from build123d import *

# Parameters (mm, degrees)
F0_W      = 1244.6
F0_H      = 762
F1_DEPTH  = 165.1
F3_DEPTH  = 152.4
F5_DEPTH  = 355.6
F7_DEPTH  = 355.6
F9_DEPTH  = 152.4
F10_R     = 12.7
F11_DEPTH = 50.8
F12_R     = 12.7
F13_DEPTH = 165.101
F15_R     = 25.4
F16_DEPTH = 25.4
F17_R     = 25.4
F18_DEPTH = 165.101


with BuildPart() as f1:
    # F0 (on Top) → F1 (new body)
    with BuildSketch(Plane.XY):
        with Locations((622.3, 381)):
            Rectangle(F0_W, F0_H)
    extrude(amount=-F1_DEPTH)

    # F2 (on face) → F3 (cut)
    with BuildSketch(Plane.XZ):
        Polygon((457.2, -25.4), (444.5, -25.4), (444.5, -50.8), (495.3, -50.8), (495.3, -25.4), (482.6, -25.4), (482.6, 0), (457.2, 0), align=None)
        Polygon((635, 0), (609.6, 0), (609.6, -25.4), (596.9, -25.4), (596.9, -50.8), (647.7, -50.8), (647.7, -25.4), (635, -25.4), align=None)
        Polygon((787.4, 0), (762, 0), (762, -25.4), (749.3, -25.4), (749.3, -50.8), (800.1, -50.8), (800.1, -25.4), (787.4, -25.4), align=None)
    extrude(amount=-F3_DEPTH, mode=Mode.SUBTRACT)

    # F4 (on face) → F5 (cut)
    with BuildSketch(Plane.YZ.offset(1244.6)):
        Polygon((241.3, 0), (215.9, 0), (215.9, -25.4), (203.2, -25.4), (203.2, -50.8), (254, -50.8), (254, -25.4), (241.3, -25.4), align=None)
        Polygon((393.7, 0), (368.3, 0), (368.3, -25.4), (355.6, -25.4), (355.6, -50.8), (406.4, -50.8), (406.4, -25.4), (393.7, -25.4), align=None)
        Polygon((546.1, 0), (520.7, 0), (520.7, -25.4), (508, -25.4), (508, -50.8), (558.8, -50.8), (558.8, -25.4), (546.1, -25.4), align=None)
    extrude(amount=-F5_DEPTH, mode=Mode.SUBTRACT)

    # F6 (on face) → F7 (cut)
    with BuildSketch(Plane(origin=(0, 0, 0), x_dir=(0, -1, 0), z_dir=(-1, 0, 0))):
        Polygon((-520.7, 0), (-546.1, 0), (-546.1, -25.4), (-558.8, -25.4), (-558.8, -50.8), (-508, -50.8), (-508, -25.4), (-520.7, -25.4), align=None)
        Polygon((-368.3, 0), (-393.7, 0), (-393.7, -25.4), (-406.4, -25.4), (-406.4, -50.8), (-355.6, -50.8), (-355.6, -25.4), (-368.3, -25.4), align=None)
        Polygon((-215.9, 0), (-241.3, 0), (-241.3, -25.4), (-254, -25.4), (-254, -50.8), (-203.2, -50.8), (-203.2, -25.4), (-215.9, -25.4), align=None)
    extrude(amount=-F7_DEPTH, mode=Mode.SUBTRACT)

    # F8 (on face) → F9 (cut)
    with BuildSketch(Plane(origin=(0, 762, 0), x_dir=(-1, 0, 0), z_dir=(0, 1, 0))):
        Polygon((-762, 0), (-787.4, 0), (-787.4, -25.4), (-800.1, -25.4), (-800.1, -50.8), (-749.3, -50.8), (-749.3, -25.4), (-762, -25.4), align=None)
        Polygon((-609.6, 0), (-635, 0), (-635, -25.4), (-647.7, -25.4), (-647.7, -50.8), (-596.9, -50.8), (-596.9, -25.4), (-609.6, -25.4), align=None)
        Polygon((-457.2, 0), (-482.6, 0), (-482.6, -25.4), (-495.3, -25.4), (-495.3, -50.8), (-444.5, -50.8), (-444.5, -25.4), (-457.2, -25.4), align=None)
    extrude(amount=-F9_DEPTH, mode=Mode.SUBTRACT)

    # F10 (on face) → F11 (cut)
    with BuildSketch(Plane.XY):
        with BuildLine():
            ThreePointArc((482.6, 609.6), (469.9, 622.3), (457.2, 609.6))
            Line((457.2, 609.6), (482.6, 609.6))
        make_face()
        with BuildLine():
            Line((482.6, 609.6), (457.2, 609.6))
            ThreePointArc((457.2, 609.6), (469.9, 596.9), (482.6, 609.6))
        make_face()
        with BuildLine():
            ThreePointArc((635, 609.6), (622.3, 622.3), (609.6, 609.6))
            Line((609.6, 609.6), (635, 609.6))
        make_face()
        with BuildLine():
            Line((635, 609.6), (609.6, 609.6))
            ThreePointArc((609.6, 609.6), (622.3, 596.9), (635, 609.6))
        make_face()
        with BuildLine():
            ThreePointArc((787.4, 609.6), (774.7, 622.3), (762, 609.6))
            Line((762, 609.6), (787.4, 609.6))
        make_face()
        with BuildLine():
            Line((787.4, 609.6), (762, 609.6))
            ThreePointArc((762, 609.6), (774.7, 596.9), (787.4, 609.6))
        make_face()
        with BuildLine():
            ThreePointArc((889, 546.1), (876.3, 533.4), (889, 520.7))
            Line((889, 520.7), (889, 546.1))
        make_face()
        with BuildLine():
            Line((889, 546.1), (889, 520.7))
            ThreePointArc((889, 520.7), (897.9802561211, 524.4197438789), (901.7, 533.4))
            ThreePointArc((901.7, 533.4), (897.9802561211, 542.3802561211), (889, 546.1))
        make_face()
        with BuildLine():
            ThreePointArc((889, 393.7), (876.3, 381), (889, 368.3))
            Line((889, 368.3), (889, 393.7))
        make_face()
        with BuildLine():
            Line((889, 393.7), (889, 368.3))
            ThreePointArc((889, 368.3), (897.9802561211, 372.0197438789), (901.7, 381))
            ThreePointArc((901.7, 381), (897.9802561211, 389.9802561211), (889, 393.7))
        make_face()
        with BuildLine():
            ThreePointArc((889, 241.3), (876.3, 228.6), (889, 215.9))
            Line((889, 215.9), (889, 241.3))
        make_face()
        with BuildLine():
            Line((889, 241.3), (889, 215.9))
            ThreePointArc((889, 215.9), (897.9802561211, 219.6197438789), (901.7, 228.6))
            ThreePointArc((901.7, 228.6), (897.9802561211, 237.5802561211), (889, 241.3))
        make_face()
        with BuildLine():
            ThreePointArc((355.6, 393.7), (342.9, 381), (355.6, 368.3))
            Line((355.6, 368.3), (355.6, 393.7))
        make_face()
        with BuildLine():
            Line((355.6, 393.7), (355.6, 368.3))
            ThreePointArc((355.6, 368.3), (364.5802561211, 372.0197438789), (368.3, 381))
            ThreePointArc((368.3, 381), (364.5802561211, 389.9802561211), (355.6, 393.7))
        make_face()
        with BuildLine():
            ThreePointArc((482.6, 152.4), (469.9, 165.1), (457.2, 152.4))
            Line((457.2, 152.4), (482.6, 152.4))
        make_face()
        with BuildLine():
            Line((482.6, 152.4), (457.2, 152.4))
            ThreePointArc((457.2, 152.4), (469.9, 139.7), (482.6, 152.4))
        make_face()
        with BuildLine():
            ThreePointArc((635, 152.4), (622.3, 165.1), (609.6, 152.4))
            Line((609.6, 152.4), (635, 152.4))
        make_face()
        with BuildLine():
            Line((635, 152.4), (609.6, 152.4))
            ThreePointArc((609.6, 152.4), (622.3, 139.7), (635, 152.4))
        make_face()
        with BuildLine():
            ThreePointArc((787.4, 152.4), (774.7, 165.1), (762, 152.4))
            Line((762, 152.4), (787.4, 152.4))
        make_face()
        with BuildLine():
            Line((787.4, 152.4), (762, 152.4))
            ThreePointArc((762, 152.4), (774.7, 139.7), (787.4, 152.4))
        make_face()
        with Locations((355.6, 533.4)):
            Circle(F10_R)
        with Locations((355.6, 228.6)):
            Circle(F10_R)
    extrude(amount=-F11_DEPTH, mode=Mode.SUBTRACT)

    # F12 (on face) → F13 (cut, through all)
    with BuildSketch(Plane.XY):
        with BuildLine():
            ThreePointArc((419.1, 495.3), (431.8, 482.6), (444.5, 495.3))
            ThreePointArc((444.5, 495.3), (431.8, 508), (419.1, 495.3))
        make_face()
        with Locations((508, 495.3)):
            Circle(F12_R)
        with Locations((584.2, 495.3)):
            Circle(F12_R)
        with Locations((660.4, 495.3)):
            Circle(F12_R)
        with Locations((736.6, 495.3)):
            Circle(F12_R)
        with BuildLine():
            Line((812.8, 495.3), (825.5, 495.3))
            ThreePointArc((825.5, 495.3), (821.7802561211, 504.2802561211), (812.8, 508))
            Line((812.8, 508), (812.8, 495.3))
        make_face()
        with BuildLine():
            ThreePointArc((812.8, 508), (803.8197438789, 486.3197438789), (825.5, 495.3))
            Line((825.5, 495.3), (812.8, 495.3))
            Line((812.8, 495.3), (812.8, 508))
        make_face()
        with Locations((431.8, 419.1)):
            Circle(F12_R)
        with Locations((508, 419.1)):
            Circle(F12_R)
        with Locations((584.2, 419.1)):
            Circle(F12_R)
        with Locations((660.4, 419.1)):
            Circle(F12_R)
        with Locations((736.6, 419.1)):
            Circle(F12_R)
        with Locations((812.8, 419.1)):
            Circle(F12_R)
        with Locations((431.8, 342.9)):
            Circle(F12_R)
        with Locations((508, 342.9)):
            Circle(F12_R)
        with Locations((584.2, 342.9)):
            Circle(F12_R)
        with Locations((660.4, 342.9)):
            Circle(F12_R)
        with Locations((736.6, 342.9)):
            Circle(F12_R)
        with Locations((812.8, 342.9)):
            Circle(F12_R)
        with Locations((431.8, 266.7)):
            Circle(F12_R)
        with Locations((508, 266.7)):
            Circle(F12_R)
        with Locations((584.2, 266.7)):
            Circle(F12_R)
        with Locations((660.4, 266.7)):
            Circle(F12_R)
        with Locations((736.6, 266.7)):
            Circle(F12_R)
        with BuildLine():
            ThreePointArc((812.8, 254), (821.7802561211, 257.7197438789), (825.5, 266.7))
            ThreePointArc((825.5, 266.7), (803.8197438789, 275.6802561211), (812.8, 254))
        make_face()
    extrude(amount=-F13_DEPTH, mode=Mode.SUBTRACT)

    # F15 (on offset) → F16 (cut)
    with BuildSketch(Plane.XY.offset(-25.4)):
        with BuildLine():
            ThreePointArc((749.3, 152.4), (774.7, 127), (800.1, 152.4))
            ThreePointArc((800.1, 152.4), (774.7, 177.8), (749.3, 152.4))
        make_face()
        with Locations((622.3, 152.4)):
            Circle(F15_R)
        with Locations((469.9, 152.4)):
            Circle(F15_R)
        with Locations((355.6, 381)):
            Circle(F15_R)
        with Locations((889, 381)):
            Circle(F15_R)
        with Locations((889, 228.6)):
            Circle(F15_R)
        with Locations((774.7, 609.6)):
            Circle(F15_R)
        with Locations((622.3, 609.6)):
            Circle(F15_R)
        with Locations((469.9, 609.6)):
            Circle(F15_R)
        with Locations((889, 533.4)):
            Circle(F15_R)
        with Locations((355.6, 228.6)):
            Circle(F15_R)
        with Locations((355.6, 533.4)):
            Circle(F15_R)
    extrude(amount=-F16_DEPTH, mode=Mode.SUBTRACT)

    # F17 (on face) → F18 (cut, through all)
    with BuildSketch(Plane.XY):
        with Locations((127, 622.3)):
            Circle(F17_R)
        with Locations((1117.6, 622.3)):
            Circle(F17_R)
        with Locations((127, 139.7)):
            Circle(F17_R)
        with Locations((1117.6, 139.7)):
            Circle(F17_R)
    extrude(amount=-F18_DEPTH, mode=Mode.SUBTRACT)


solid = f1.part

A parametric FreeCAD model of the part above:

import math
import FreeCAD as App
import Part
import Sketcher
Q = App.Units.Quantity


def add_polygon(sketch, points):
    """Adds a closed chain of lines whose ends are joined by coincident constraints."""
    first, n = sketch.GeometryCount, len(points)
    for a, b in zip(points, points[1:] + points[:1]):
        sketch.addGeometry(Part.LineSegment(App.Vector(*a, 0), App.Vector(*b, 0)), False)
    for i in range(n):
        sketch.addConstraint(Sketcher.Constraint("Coincident", first + i, 2, first + (i + 1) % n, 1))

doc = App.newDocument("Part")
body = doc.addObject("PartDesign::Body", "Body")

sketch1 = doc.addObject("Sketcher::SketchObject", "Sketch")
body.addObject(sketch1)
sketch1.AttachmentSupport = (doc.XY_Plane, [""])
sketch1.MapMode = "FlatFace"
add_polygon(sketch1, [(0, 762), (0, 0), (1245, 0), (1245, 762)])
sketch1.addConstraint(Sketcher.Constraint("Vertical", 0))
sketch1.addConstraint(Sketcher.Constraint("Horizontal", 1))
sketch1.addConstraint(Sketcher.Constraint("Vertical", 2))
sketch1.addConstraint(Sketcher.Constraint("Horizontal", 3))
sketch1.addConstraint(Sketcher.Constraint("Coincident", 0, 2, -1, 1))
sketch1.addConstraint(Sketcher.Constraint("DistanceX", 1, 1, 1, 2, Q("49 in")))
sketch1.addConstraint(Sketcher.Constraint("DistanceY", 0, 2, 0, 1, Q("30 in")))
pad1 = doc.addObject("PartDesign::Pad", "Pad")
body.addObject(pad1)
pad1.Profile = sketch1
pad1.Length = Q("6.5 in")
pad1.Reversed = True

sketch2 = doc.addObject("Sketcher::SketchObject", "Sketch001")
body.addObject(sketch2)
sketch2.AttachmentSupport = (doc.XZ_Plane, [""])
sketch2.MapMode = "FlatFace"
add_polygon(sketch2, [(457, -25), (444, -25), (444, -51), (495, -51), (495, -25), (483, -25), (483, 0), (457, 0)])
add_polygon(sketch2, [(635, 0), (610, 0), (610, -25), (597, -25), (597, -51), (648, -51), (648, -25), (635, -25)])
add_polygon(sketch2, [(787, 0), (762, 0), (762, -25), (749, -25), (749, -51), (800, -51), (800, -25), (787, -25)])
sketch2.addConstraint(Sketcher.Constraint("Horizontal", 0))
sketch2.addConstraint(Sketcher.Constraint("Vertical", 1))
sketch2.addConstraint(Sketcher.Constraint("Horizontal", 2))
sketch2.addConstraint(Sketcher.Constraint("Vertical", 3))
sketch2.addConstraint(Sketcher.Constraint("Horizontal", 4))
sketch2.addConstraint(Sketcher.Constraint("Vertical", 5))
sketch2.addConstraint(Sketcher.Constraint("Horizontal", 6))
sketch2.addConstraint(Sketcher.Constraint("Vertical", 7))
sketch2.addConstraint(Sketcher.Constraint("Horizontal", 8))
sketch2.addConstraint(Sketcher.Constraint("Vertical", 9))
sketch2.addConstraint(Sketcher.Constraint("Horizontal", 10))
sketch2.addConstraint(Sketcher.Constraint("Vertical", 11))
sketch2.addConstraint(Sketcher.Constraint("Horizontal", 12))
sketch2.addConstraint(Sketcher.Constraint("Vertical", 13))
sketch2.addConstraint(Sketcher.Constraint("Horizontal", 14))
sketch2.addConstraint(Sketcher.Constraint("Vertical", 15))
sketch2.addConstraint(Sketcher.Constraint("Horizontal", 16))
sketch2.addConstraint(Sketcher.Constraint("Vertical", 17))
sketch2.addConstraint(Sketcher.Constraint("Horizontal", 18))
sketch2.addConstraint(Sketcher.Constraint("Vertical", 19))
sketch2.addConstraint(Sketcher.Constraint("Horizontal", 20))
sketch2.addConstraint(Sketcher.Constraint("Vertical", 21))
sketch2.addConstraint(Sketcher.Constraint("Horizontal", 22))
sketch2.addConstraint(Sketcher.Constraint("Vertical", 23))
sketch2.addConstraint(Sketcher.Constraint("PointOnObject", 5, 2, -1))
sketch2.addConstraint(Sketcher.Constraint("PointOnObject", 8, 2, -1))
sketch2.addConstraint(Sketcher.Constraint("PointOnObject", 16, 2, -1))
sketch2.addConstraint(Sketcher.Constraint("Horizontal", 0, 2, 3, 2))
sketch2.addConstraint(Sketcher.Constraint("Horizontal", 7, 2, 9, 2))
sketch2.addConstraint(Sketcher.Constraint("Horizontal", 2, 2, 11, 2))
sketch2.addConstraint(Sketcher.Constraint("Horizontal", 10, 2, 13, 2))
sketch2.addConstraint(Sketcher.Constraint("Horizontal", 14, 2, 17, 2))
sketch2.addConstraint(Sketcher.Constraint("Horizontal", 12, 2, 19, 2))
sketch2.addConstraint(Sketcher.Constraint("Horizontal", 18, 2, 21, 2))
sketch2.addConstraint(Sketcher.Constraint("Equal", 0, 4))
sketch2.addConstraint(Sketcher.Constraint("Equal", 6, 8))
sketch2.addConstraint(Sketcher.Constraint("Equal", 4, 10))
sketch2.addConstraint(Sketcher.Constraint("Equal", 2, 12))
sketch2.addConstraint(Sketcher.Constraint("Equal", 8, 16))
sketch2.addConstraint(Sketcher.Constraint("Equal", 14, 18))
sketch2.addConstraint(Sketcher.Constraint("Equal", 12, 20))
sketch2.addConstraint(Sketcher.Constraint("Equal", 16, 1))
sketch2.addConstraint(Sketcher.Constraint("Equal", 3, 5))
sketch2.addConstraint(Sketcher.Constraint("DistanceX", 2, 1, 2, 2, Q("2 in")))
sketch2.addConstraint(Sketcher.Constraint("DistanceX", 6, 2, 6, 1, Q("1 in")))
sketch2.addConstraint(Sketcher.Constraint("DistanceX", -1, 1, 4, 2, Q("19 in")))
sketch2.addConstraint(Sketcher.Constraint("DistanceX", -1, 1, 8, 2, Q("24 in")))
sketch2.addConstraint(Sketcher.Constraint("DistanceX", -1, 1, 16, 2, Q("30 in")))
pocket1 = doc.addObject("PartDesign::Pocket", "Pocket")
body.addObject(pocket1)
pocket1.Profile = sketch2
pocket1.Length = Q("6 in")

sketch3 = doc.addObject("Sketcher::SketchObject", "Sketch002")
body.addObject(sketch3)
sketch3.AttachmentSupport = (doc.YZ_Plane, [""])
sketch3.MapMode = "FlatFace"
sketch3.AttachmentOffset = App.Placement(App.Vector(0, 0, 49 * 25.4), App.Rotation())
add_polygon(sketch3, [(241, 0), (216, 0), (216, -25), (203, -25), (203, -51), (254, -51), (254, -25), (241, -25)])
add_polygon(sketch3, [(394, 0), (368, 0), (368, -25), (356, -25), (356, -51), (406, -51), (406, -25), (394, -25)])
add_polygon(sketch3, [(546, 0), (521, 0), (521, -25), (508, -25), (508, -51), (559, -51), (559, -25), (546, -25)])
sketch3.addConstraint(Sketcher.Constraint("Horizontal", 0))
sketch3.addConstraint(Sketcher.Constraint("Vertical", 1))
sketch3.addConstraint(Sketcher.Constraint("Horizontal", 2))
sketch3.addConstraint(Sketcher.Constraint("Vertical", 3))
sketch3.addConstraint(Sketcher.Constraint("Horizontal", 4))
sketch3.addConstraint(Sketcher.Constraint("Vertical", 5))
sketch3.addConstraint(Sketcher.Constraint("Horizontal", 6))
sketch3.addConstraint(Sketcher.Constraint("Vertical", 7))
sketch3.addConstraint(Sketcher.Constraint("Horizontal", 8))
sketch3.addConstraint(Sketcher.Constraint("Vertical", 9))
sketch3.addConstraint(Sketcher.Constraint("Horizontal", 10))
sketch3.addConstraint(Sketcher.Constraint("Vertical", 11))
sketch3.addConstraint(Sketcher.Constraint("Horizontal", 12))
sketch3.addConstraint(Sketcher.Constraint("Vertical", 13))
sketch3.addConstraint(Sketcher.Constraint("Horizontal", 14))
sketch3.addConstraint(Sketcher.Constraint("Vertical", 15))
sketch3.addConstraint(Sketcher.Constraint("Horizontal", 16))
sketch3.addConstraint(Sketcher.Constraint("Vertical", 17))
sketch3.addConstraint(Sketcher.Constraint("Horizontal", 18))
sketch3.addConstraint(Sketcher.Constraint("Vertical", 19))
sketch3.addConstraint(Sketcher.Constraint("Horizontal", 20))
sketch3.addConstraint(Sketcher.Constraint("Vertical", 21))
sketch3.addConstraint(Sketcher.Constraint("Horizontal", 22))
sketch3.addConstraint(Sketcher.Constraint("Vertical", 23))
sketch3.addConstraint(Sketcher.Constraint("PointOnObject", 0, 2, -1))
sketch3.addConstraint(Sketcher.Constraint("PointOnObject", 8, 2, -1))
sketch3.addConstraint(Sketcher.Constraint("PointOnObject", 16, 2, -1))
sketch3.addConstraint(Sketcher.Constraint("Horizontal", 2, 2, 5, 2))
sketch3.addConstraint(Sketcher.Constraint("Horizontal", 6, 2, 9, 2))
sketch3.addConstraint(Sketcher.Constraint("Horizontal", 4, 2, 11, 2))
sketch3.addConstraint(Sketcher.Constraint("Horizontal", 10, 2, 13, 2))
sketch3.addConstraint(Sketcher.Constraint("Horizontal", 14, 2, 17, 2))
sketch3.addConstraint(Sketcher.Constraint("Horizontal", 12, 2, 19, 2))
sketch3.addConstraint(Sketcher.Constraint("Horizontal", 18, 2, 21, 2))
sketch3.addConstraint(Sketcher.Constraint("Equal", 2, 6))
sketch3.addConstraint(Sketcher.Constraint("Equal", 0, 8))
sketch3.addConstraint(Sketcher.Constraint("Equal", 6, 10))
sketch3.addConstraint(Sketcher.Constraint("Equal", 4, 12))
sketch3.addConstraint(Sketcher.Constraint("Equal", 8, 16))
sketch3.addConstraint(Sketcher.Constraint("Equal", 14, 18))
sketch3.addConstraint(Sketcher.Constraint("Equal", 12, 20))
sketch3.addConstraint(Sketcher.Constraint("Equal", 16, 1))
sketch3.addConstraint(Sketcher.Constraint("Equal", 1, 3))
sketch3.addConstraint(Sketcher.Constraint("DistanceX", 0, 2, 0, 1, Q("1 in")))
sketch3.addConstraint(Sketcher.Constraint("DistanceX", 4, 1, 4, 2, Q("2 in")))
sketch3.addConstraint(Sketcher.Constraint("DistanceX", -1, 1, 2, 2, Q("8 in")))
sketch3.addConstraint(Sketcher.Constraint("DistanceX", -1, 1, 10, 2, Q("14 in")))
sketch3.addConstraint(Sketcher.Constraint("DistanceX", -1, 1, 18, 2, Q("20 in")))
pocket2 = doc.addObject("PartDesign::Pocket", "Pocket001")
body.addObject(pocket2)
pocket2.Profile = sketch3
pocket2.Length = Q("14 in")

sketch4 = doc.addObject("Sketcher::SketchObject", "Sketch003")
body.addObject(sketch4)
sketch4.AttachmentSupport = (doc.YZ_Plane, [""])
sketch4.MapMode = "FlatFace"
add_polygon(sketch4, [(521, 0), (546, 0), (546, -25), (559, -25), (559, -51), (508, -51), (508, -25), (521, -25)])
add_polygon(sketch4, [(368, 0), (394, 0), (394, -25), (406, -25), (406, -51), (356, -51), (356, -25), (368, -25)])
add_polygon(sketch4, [(216, 0), (241, 0), (241, -25), (254, -25), (254, -51), (203, -51), (203, -25), (216, -25)])
sketch4.addConstraint(Sketcher.Constraint("Horizontal", 0))
sketch4.addConstraint(Sketcher.Constraint("Vertical", 1))
sketch4.addConstraint(Sketcher.Constraint("Horizontal", 2))
sketch4.addConstraint(Sketcher.Constraint("Vertical", 3))
sketch4.addConstraint(Sketcher.Constraint("Horizontal", 4))
sketch4.addConstraint(Sketcher.Constraint("Vertical", 5))
sketch4.addConstraint(Sketcher.Constraint("Horizontal", 6))
sketch4.addConstraint(Sketcher.Constraint("Vertical", 7))
sketch4.addConstraint(Sketcher.Constraint("Horizontal", 8))
sketch4.addConstraint(Sketcher.Constraint("Vertical", 9))
sketch4.addConstraint(Sketcher.Constraint("Horizontal", 10))
sketch4.addConstraint(Sketcher.Constraint("Vertical", 11))
sketch4.addConstraint(Sketcher.Constraint("Horizontal", 12))
sketch4.addConstraint(Sketcher.Constraint("Vertical", 13))
sketch4.addConstraint(Sketcher.Constraint("Horizontal", 14))
sketch4.addConstraint(Sketcher.Constraint("Vertical", 15))
sketch4.addConstraint(Sketcher.Constraint("Horizontal", 16))
sketch4.addConstraint(Sketcher.Constraint("Vertical", 17))
sketch4.addConstraint(Sketcher.Constraint("Horizontal", 18))
sketch4.addConstraint(Sketcher.Constraint("Vertical", 19))
sketch4.addConstraint(Sketcher.Constraint("Horizontal", 20))
sketch4.addConstraint(Sketcher.Constraint("Vertical", 21))
sketch4.addConstraint(Sketcher.Constraint("Horizontal", 22))
sketch4.addConstraint(Sketcher.Constraint("Vertical", 23))
sketch4.addConstraint(Sketcher.Constraint("PointOnObject", 0, 2, -1))
sketch4.addConstraint(Sketcher.Constraint("PointOnObject", 8, 2, -1))
sketch4.addConstraint(Sketcher.Constraint("PointOnObject", 16, 2, -1))
sketch4.addConstraint(Sketcher.Constraint("Horizontal", 2, 2, 5, 2))
sketch4.addConstraint(Sketcher.Constraint("Horizontal", 6, 2, 9, 2))
sketch4.addConstraint(Sketcher.Constraint("Horizontal", 4, 2, 11, 2))
sketch4.addConstraint(Sketcher.Constraint("Horizontal", 10, 2, 13, 2))
sketch4.addConstraint(Sketcher.Constraint("Horizontal", 14, 2, 17, 2))
sketch4.addConstraint(Sketcher.Constraint("Horizontal", 12, 2, 19, 2))
sketch4.addConstraint(Sketcher.Constraint("Horizontal", 18, 2, 21, 2))
sketch4.addConstraint(Sketcher.Constraint("Equal", 2, 6))
sketch4.addConstraint(Sketcher.Constraint("Equal", 0, 8))
sketch4.addConstraint(Sketcher.Constraint("Equal", 6, 10))
sketch4.addConstraint(Sketcher.Constraint("Equal", 4, 12))
sketch4.addConstraint(Sketcher.Constraint("Equal", 8, 16))
sketch4.addConstraint(Sketcher.Constraint("Equal", 14, 18))
sketch4.addConstraint(Sketcher.Constraint("Equal", 12, 20))
sketch4.addConstraint(Sketcher.Constraint("Equal", 16, 1))
sketch4.addConstraint(Sketcher.Constraint("Equal", 1, 3))
sketch4.addConstraint(Sketcher.Constraint("DistanceX", 0, 1, 0, 2, Q("1 in")))
sketch4.addConstraint(Sketcher.Constraint("DistanceX", 4, 2, 4, 1, Q("2 in")))
sketch4.addConstraint(Sketcher.Constraint("DistanceX", -1, 1, 2, 2, Q("22 in")))
sketch4.addConstraint(Sketcher.Constraint("DistanceX", -1, 1, 10, 2, Q("16 in")))
sketch4.addConstraint(Sketcher.Constraint("DistanceX", -1, 1, 18, 2, Q("10 in")))
pocket3 = doc.addObject("PartDesign::Pocket", "Pocket002")
body.addObject(pocket3)
pocket3.Profile = sketch4
pocket3.Length = Q("14 in")
pocket3.Reversed = True

sketch5 = doc.addObject("Sketcher::SketchObject", "Sketch004")
body.addObject(sketch5)
sketch5.AttachmentSupport = (doc.XZ_Plane, [""])
sketch5.MapMode = "FlatFace"
sketch5.AttachmentOffset = App.Placement(App.Vector(0, 0, -30 * 25.4), App.Rotation())
add_polygon(sketch5, [(762, 0), (787, 0), (787, -25), (800, -25), (800, -51), (749, -51), (749, -25), (762, -25)])
add_polygon(sketch5, [(610, 0), (635, 0), (635, -25), (648, -25), (648, -51), (597, -51), (597, -25), (610, -25)])
add_polygon(sketch5, [(457, 0), (483, 0), (483, -25), (495, -25), (495, -51), (444, -51), (444, -25), (457, -25)])
sketch5.addConstraint(Sketcher.Constraint("Horizontal", 0))
sketch5.addConstraint(Sketcher.Constraint("Vertical", 1))
sketch5.addConstraint(Sketcher.Constraint("Horizontal", 2))
sketch5.addConstraint(Sketcher.Constraint("Vertical", 3))
sketch5.addConstraint(Sketcher.Constraint("Horizontal", 4))
sketch5.addConstraint(Sketcher.Constraint("Vertical", 5))
sketch5.addConstraint(Sketcher.Constraint("Horizontal", 6))
sketch5.addConstraint(Sketcher.Constraint("Vertical", 7))
sketch5.addConstraint(Sketcher.Constraint("Horizontal", 8))
sketch5.addConstraint(Sketcher.Constraint("Vertical", 9))
sketch5.addConstraint(Sketcher.Constraint("Horizontal", 10))
sketch5.addConstraint(Sketcher.Constraint("Vertical", 11))
sketch5.addConstraint(Sketcher.Constraint("Horizontal", 12))
sketch5.addConstraint(Sketcher.Constraint("Vertical", 13))
sketch5.addConstraint(Sketcher.Constraint("Horizontal", 14))
sketch5.addConstraint(Sketcher.Constraint("Vertical", 15))
sketch5.addConstraint(Sketcher.Constraint("Horizontal", 16))
sketch5.addConstraint(Sketcher.Constraint("Vertical", 17))
sketch5.addConstraint(Sketcher.Constraint("Horizontal", 18))
sketch5.addConstraint(Sketcher.Constraint("Vertical", 19))
sketch5.addConstraint(Sketcher.Constraint("Horizontal", 20))
sketch5.addConstraint(Sketcher.Constraint("Vertical", 21))
sketch5.addConstraint(Sketcher.Constraint("Horizontal", 22))
sketch5.addConstraint(Sketcher.Constraint("Vertical", 23))
sketch5.addConstraint(Sketcher.Constraint("PointOnObject", 0, 2, -1))
sketch5.addConstraint(Sketcher.Constraint("PointOnObject", 8, 2, -1))
sketch5.addConstraint(Sketcher.Constraint("PointOnObject", 16, 2, -1))
sketch5.addConstraint(Sketcher.Constraint("Horizontal", 2, 2, 5, 2))
sketch5.addConstraint(Sketcher.Constraint("Horizontal", 6, 2, 9, 2))
sketch5.addConstraint(Sketcher.Constraint("Horizontal", 4, 2, 11, 2))
sketch5.addConstraint(Sketcher.Constraint("Horizontal", 10, 2, 13, 2))
sketch5.addConstraint(Sketcher.Constraint("Horizontal", 14, 2, 17, 2))
sketch5.addConstraint(Sketcher.Constraint("Horizontal", 12, 2, 19, 2))
sketch5.addConstraint(Sketcher.Constraint("Horizontal", 18, 2, 21, 2))
sketch5.addConstraint(Sketcher.Constraint("Equal", 2, 6))
sketch5.addConstraint(Sketcher.Constraint("Equal", 0, 8))
sketch5.addConstraint(Sketcher.Constraint("Equal", 6, 10))
sketch5.addConstraint(Sketcher.Constraint("Equal", 4, 12))
sketch5.addConstraint(Sketcher.Constraint("Equal", 8, 16))
sketch5.addConstraint(Sketcher.Constraint("Equal", 14, 18))
sketch5.addConstraint(Sketcher.Constraint("Equal", 12, 20))
sketch5.addConstraint(Sketcher.Constraint("Equal", 16, 1))
sketch5.addConstraint(Sketcher.Constraint("Equal", 1, 3))
sketch5.addConstraint(Sketcher.Constraint("DistanceX", 0, 1, 0, 2, Q("1 in")))
sketch5.addConstraint(Sketcher.Constraint("DistanceX", 4, 2, 4, 1, Q("2 in")))
sketch5.addConstraint(Sketcher.Constraint("DistanceX", -1, 1, 0, 2, Q("31 in")))
sketch5.addConstraint(Sketcher.Constraint("DistanceX", -1, 1, 8, 2, Q("25 in")))
sketch5.addConstraint(Sketcher.Constraint("DistanceX", -1, 1, 16, 2, Q("19 in")))
pocket4 = doc.addObject("PartDesign::Pocket", "Pocket003")
body.addObject(pocket4)
pocket4.Profile = sketch5
pocket4.Length = Q("6 in")
pocket4.Reversed = True

sketch6 = doc.addObject("Sketcher::SketchObject", "Sketch005")
body.addObject(sketch6)
sketch6.AttachmentSupport = (doc.XY_Plane, [""])
sketch6.MapMode = "FlatFace"
sketch6.addGeometry(Part.Circle(App.Vector(470, 610, 0), App.Vector(0, 0, 1), 13), False)
sketch6.addGeometry(Part.Circle(App.Vector(622, 610, 0), App.Vector(0, 0, 1), 13), False)
sketch6.addGeometry(Part.Circle(App.Vector(775, 610, 0), App.Vector(0, 0, 1), 13), False)
sketch6.addGeometry(Part.ArcOfCircle(Part.Circle(App.Vector(889, 533, 0), App.Vector(0, 0, 1), 13), math.radians(90), math.radians(270)), False)
sketch6.addGeometry(Part.ArcOfCircle(Part.Circle(App.Vector(889, 533, 0), App.Vector(0, 0, 1), 13), math.radians(-90), math.radians(0)), False)
sketch6.addGeometry(Part.ArcOfCircle(Part.Circle(App.Vector(889, 533, 0), App.Vector(0, 0, 1), 13), math.radians(0), math.radians(90)), False)
sketch6.addGeometry(Part.ArcOfCircle(Part.Circle(App.Vector(889, 381, 0), App.Vector(0, 0, 1), 13), math.radians(90), math.radians(270)), False)
sketch6.addGeometry(Part.ArcOfCircle(Part.Circle(App.Vector(889, 381, 0), App.Vector(0, 0, 1), 13), math.radians(-90), math.radians(0)), False)
sketch6.addGeometry(Part.ArcOfCircle(Part.Circle(App.Vector(889, 381, 0), App.Vector(0, 0, 1), 13), math.radians(0), math.radians(90)), False)
sketch6.addGeometry(Part.ArcOfCircle(Part.Circle(App.Vector(889, 229, 0), App.Vector(0, 0, 1), 13), math.radians(90), math.radians(270)), False)
sketch6.addGeometry(Part.ArcOfCircle(Part.Circle(App.Vector(889, 229, 0), App.Vector(0, 0, 1), 13), math.radians(-90), math.radians(0)), False)
sketch6.addGeometry(Part.ArcOfCircle(Part.Circle(App.Vector(889, 229, 0), App.Vector(0, 0, 1), 13), math.radians(0), math.radians(90)), False)
sketch6.addGeometry(Part.ArcOfCircle(Part.Circle(App.Vector(356, 381, 0), App.Vector(0, 0, 1), 13), math.radians(90), math.radians(270)), False)
sketch6.addGeometry(Part.ArcOfCircle(Part.Circle(App.Vector(356, 381, 0), App.Vector(0, 0, 1), 13), math.radians(-90), math.radians(0)), False)
sketch6.addGeometry(Part.ArcOfCircle(Part.Circle(App.Vector(356, 381, 0), App.Vector(0, 0, 1), 13), math.radians(0), math.radians(90)), False)
sketch6.addGeometry(Part.Circle(App.Vector(470, 152, 0), App.Vector(0, 0, 1), 13), False)
sketch6.addGeometry(Part.Circle(App.Vector(622, 152, 0), App.Vector(0, 0, 1), 13), False)
sketch6.addGeometry(Part.Circle(App.Vector(775, 152, 0), App.Vector(0, 0, 1), 13), False)
sketch6.addGeometry(Part.Circle(App.Vector(356, 533, 0), App.Vector(0, 0, 1), 13), False)
sketch6.addGeometry(Part.Circle(App.Vector(356, 229, 0), App.Vector(0, 0, 1), 13), False)
sketch6.addConstraint(Sketcher.Constraint("Tangent", 3, 2, 4, 1))
sketch6.addConstraint(Sketcher.Constraint("Tangent", 4, 2, 5, 1))
sketch6.addConstraint(Sketcher.Constraint("Tangent", 5, 2, 3, 1))
sketch6.addConstraint(Sketcher.Constraint("Tangent", 6, 2, 7, 1))
sketch6.addConstraint(Sketcher.Constraint("Tangent", 7, 2, 8, 1))
sketch6.addConstraint(Sketcher.Constraint("Tangent", 8, 2, 6, 1))
sketch6.addConstraint(Sketcher.Constraint("Tangent", 9, 2, 10, 1))
sketch6.addConstraint(Sketcher.Constraint("Tangent", 10, 2, 11, 1))
sketch6.addConstraint(Sketcher.Constraint("Tangent", 11, 2, 9, 1))
sketch6.addConstraint(Sketcher.Constraint("Tangent", 12, 2, 13, 1))
sketch6.addConstraint(Sketcher.Constraint("Tangent", 13, 2, 14, 1))
sketch6.addConstraint(Sketcher.Constraint("Tangent", 14, 2, 12, 1))
sketch6.addConstraint(Sketcher.Constraint("Equal", 0, 1))
sketch6.addConstraint(Sketcher.Constraint("Equal", 1, 2))
sketch6.addConstraint(Sketcher.Constraint("Equal", 2, 3))
sketch6.addConstraint(Sketcher.Constraint("Equal", 5, 6))
sketch6.addConstraint(Sketcher.Constraint("Equal", 8, 9))
sketch6.addConstraint(Sketcher.Constraint("Equal", 11, 12))
sketch6.addConstraint(Sketcher.Constraint("Equal", 14, 15))
sketch6.addConstraint(Sketcher.Constraint("Equal", 15, 16))
sketch6.addConstraint(Sketcher.Constraint("Equal", 16, 17))
sketch6.addConstraint(Sketcher.Constraint("Equal", 17, 18))
sketch6.addConstraint(Sketcher.Constraint("Equal", 18, 19))
sketch6.addConstraint(Sketcher.Constraint("Horizontal", 0, 3, 1, 3))
sketch6.addConstraint(Sketcher.Constraint("Horizontal", 1, 3, 2, 3))
sketch6.addConstraint(Sketcher.Constraint("Horizontal", 8, 3, 12, 3))
sketch6.addConstraint(Sketcher.Constraint("Horizontal", 15, 3, 16, 3))
sketch6.addConstraint(Sketcher.Constraint("Horizontal", 16, 3, 17, 3))
sketch6.addConstraint(Sketcher.Constraint("Horizontal", 5, 3, 18, 3))
sketch6.addConstraint(Sketcher.Constraint("Horizontal", 11, 3, 19, 3))
sketch6.addConstraint(Sketcher.Constraint("Horizontal", 18, 3, 4, 2))
sketch6.addConstraint(Sketcher.Constraint("Horizontal", 14, 3, 7, 2))
sketch6.addConstraint(Sketcher.Constraint("Horizontal", 19, 3, 10, 2))
sketch6.addConstraint(Sketcher.Constraint("Horizontal", 7, 2, 13, 2))
sketch6.addConstraint(Sketcher.Constraint("Vertical", 5, 3, 6, 3))
sketch6.addConstraint(Sketcher.Constraint("Vertical", 8, 3, 9, 3))
sketch6.addConstraint(Sketcher.Constraint("Vertical", 0, 3, 15, 3))
sketch6.addConstraint(Sketcher.Constraint("Vertical", 1, 3, 16, 3))
sketch6.addConstraint(Sketcher.Constraint("Vertical", 2, 3, 17, 3))
sketch6.addConstraint(Sketcher.Constraint("Vertical", 14, 3, 18, 3))
sketch6.addConstraint(Sketcher.Constraint("Vertical", 18, 3, 19, 3))
sketch6.addConstraint(Sketcher.Constraint("Vertical", 11, 3, 3, 2))
sketch6.addConstraint(Sketcher.Constraint("Vertical", 3, 2, 5, 2))
sketch6.addConstraint(Sketcher.Constraint("Vertical", 5, 2, 6, 2))
sketch6.addConstraint(Sketcher.Constraint("Vertical", 6, 2, 8, 2))
sketch6.addConstraint(Sketcher.Constraint("Vertical", 8, 2, 9, 2))
sketch6.addConstraint(Sketcher.Constraint("Vertical", 9, 2, 11, 2))
sketch6.addConstraint(Sketcher.Constraint("Vertical", 19, 3, 12, 2))
sketch6.addConstraint(Sketcher.Constraint("Vertical", 12, 2, 14, 2))
sketch6.addConstraint(Sketcher.Constraint("Diameter", 0, Q("1 in")))
sketch6.addConstraint(Sketcher.Constraint("DistanceY", -1, 1, 0, 3, Q("24 in")))
sketch6.addConstraint(Sketcher.Constraint("DistanceX", -1, 1, 3, 3, Q("35 in")))
sketch6.addConstraint(Sketcher.Constraint("DistanceY", -1, 1, 3, 3, Q("21 in")))
sketch6.addConstraint(Sketcher.Constraint("DistanceY", -1, 1, 6, 3, Q("15 in")))
sketch6.addConstraint(Sketcher.Constraint("DistanceY", -1, 1, 9, 3, Q("9 in")))
sketch6.addConstraint(Sketcher.Constraint("DistanceX", -1, 1, 12, 3, Q("14 in")))
sketch6.addConstraint(Sketcher.Constraint("DistanceY", -1, 1, 15, 3, Q("6 in")))
sketch6.addConstraint(Sketcher.Constraint("DistanceX", 0, 3, 1, 3, Q("6 in")))
sketch6.addConstraint(Sketcher.Constraint("DistanceX", 1, 3, 2, 3, Q("6 in")))
sketch6.addConstraint(Sketcher.Constraint("DistanceX", 2, 3, 4, 2, Q("5 in")))
pocket5 = doc.addObject("PartDesign::Pocket", "Pocket004")
body.addObject(pocket5)
pocket5.Profile = sketch6
pocket5.Length = Q("2 in")

sketch7 = doc.addObject("Sketcher::SketchObject", "Sketch006")
body.addObject(sketch7)
sketch7.AttachmentSupport = (doc.XY_Plane, [""])
sketch7.MapMode = "FlatFace"
sketch7.addGeometry(Part.Circle(App.Vector(432, 495, 0), App.Vector(0, 0, 1), 13), False)
sketch7.addGeometry(Part.Circle(App.Vector(508, 495, 0), App.Vector(0, 0, 1), 13), False)
sketch7.addGeometry(Part.Circle(App.Vector(584, 495, 0), App.Vector(0, 0, 1), 13), False)
sketch7.addGeometry(Part.Circle(App.Vector(660, 495, 0), App.Vector(0, 0, 1), 13), False)
sketch7.addGeometry(Part.Circle(App.Vector(737, 495, 0), App.Vector(0, 0, 1), 13), False)
sketch7.addGeometry(Part.ArcOfCircle(Part.Circle(App.Vector(813, 495, 0), App.Vector(0, 0, 1), 13), math.radians(0), math.radians(90)), False)
sketch7.addGeometry(Part.ArcOfCircle(Part.Circle(App.Vector(813, 495, 0), App.Vector(0, 0, 1), 13), math.radians(90), math.radians(360)), False)
sketch7.addGeometry(Part.Circle(App.Vector(432, 419, 0), App.Vector(0, 0, 1), 13), False)
sketch7.addGeometry(Part.Circle(App.Vector(508, 419, 0), App.Vector(0, 0, 1), 13), False)
sketch7.addGeometry(Part.Circle(App.Vector(584, 419, 0), App.Vector(0, 0, 1), 13), False)
sketch7.addGeometry(Part.Circle(App.Vector(660, 419, 0), App.Vector(0, 0, 1), 13), False)
sketch7.addGeometry(Part.Circle(App.Vector(737, 419, 0), App.Vector(0, 0, 1), 13), False)
sketch7.addGeometry(Part.Circle(App.Vector(813, 419, 0), App.Vector(0, 0, 1), 13), False)
sketch7.addGeometry(Part.Circle(App.Vector(432, 343, 0), App.Vector(0, 0, 1), 13), False)
sketch7.addGeometry(Part.Circle(App.Vector(508, 343, 0), App.Vector(0, 0, 1), 13), False)
sketch7.addGeometry(Part.Circle(App.Vector(584, 343, 0), App.Vector(0, 0, 1), 13), False)
sketch7.addGeometry(Part.Circle(App.Vector(660, 343, 0), App.Vector(0, 0, 1), 13), False)
sketch7.addGeometry(Part.Circle(App.Vector(737, 343, 0), App.Vector(0, 0, 1), 13), False)
sketch7.addGeometry(Part.Circle(App.Vector(813, 343, 0), App.Vector(0, 0, 1), 13), False)
sketch7.addGeometry(Part.Circle(App.Vector(432, 267, 0), App.Vector(0, 0, 1), 13), False)
sketch7.addGeometry(Part.Circle(App.Vector(508, 267, 0), App.Vector(0, 0, 1), 13), False)
sketch7.addGeometry(Part.Circle(App.Vector(584, 267, 0), App.Vector(0, 0, 1), 13), False)
sketch7.addGeometry(Part.Circle(App.Vector(660, 267, 0), App.Vector(0, 0, 1), 13), False)
sketch7.addGeometry(Part.Circle(App.Vector(737, 267, 0), App.Vector(0, 0, 1), 13), False)
sketch7.addGeometry(Part.ArcOfCircle(Part.Circle(App.Vector(813, 267, 0), App.Vector(0, 0, 1), 13), math.radians(-90), math.radians(0)), False)
sketch7.addGeometry(Part.ArcOfCircle(Part.Circle(App.Vector(813, 267, 0), App.Vector(0, 0, 1), 13), math.radians(0), math.radians(270)), False)
sketch7.addConstraint(Sketcher.Constraint("Tangent", 5, 1, 6, 2))
sketch7.addConstraint(Sketcher.Constraint("Coincident", 6, 1, 5, 2))
sketch7.addConstraint(Sketcher.Constraint("Tangent", 24, 1, 25, 2))
sketch7.addConstraint(Sketcher.Constraint("Coincident", 25, 1, 24, 2))
sketch7.addConstraint(Sketcher.Constraint("Equal", 0, 1))
sketch7.addConstraint(Sketcher.Constraint("Equal", 1, 2))
sketch7.addConstraint(Sketcher.Constraint("Equal", 2, 3))
sketch7.addConstraint(Sketcher.Constraint("Equal", 3, 4))
sketch7.addConstraint(Sketcher.Constraint("Equal", 4, 5))
sketch7.addConstraint(Sketcher.Constraint("Equal", 6, 7))
sketch7.addConstraint(Sketcher.Constraint("Equal", 7, 8))
sketch7.addConstraint(Sketcher.Constraint("Equal", 8, 9))
sketch7.addConstraint(Sketcher.Constraint("Equal", 9, 10))
sketch7.addConstraint(Sketcher.Constraint("Equal", 10, 11))
sketch7.addConstraint(Sketcher.Constraint("Equal", 11, 12))
sketch7.addConstraint(Sketcher.Constraint("Equal", 12, 13))
sketch7.addConstraint(Sketcher.Constraint("Equal", 13, 14))
sketch7.addConstraint(Sketcher.Constraint("Equal", 14, 15))
sketch7.addConstraint(Sketcher.Constraint("Equal", 15, 16))
sketch7.addConstraint(Sketcher.Constraint("Equal", 16, 17))
sketch7.addConstraint(Sketcher.Constraint("Equal", 17, 18))
sketch7.addConstraint(Sketcher.Constraint("Equal", 18, 19))
sketch7.addConstraint(Sketcher.Constraint("Equal", 19, 20))
sketch7.addConstraint(Sketcher.Constraint("Equal", 20, 21))
sketch7.addConstraint(Sketcher.Constraint("Equal", 21, 22))
sketch7.addConstraint(Sketcher.Constraint("Equal", 22, 23))
sketch7.addConstraint(Sketcher.Constraint("Equal", 23, 24))
sketch7.addConstraint(Sketcher.Constraint("Horizontal", 0, 3, 1, 3))
sketch7.addConstraint(Sketcher.Constraint("Horizontal", 1, 3, 2, 3))
sketch7.addConstraint(Sketcher.Constraint("Horizontal", 2, 3, 3, 3))
sketch7.addConstraint(Sketcher.Constraint("Horizontal", 3, 3, 4, 3))
sketch7.addConstraint(Sketcher.Constraint("Horizontal", 4, 3, 5, 3))
sketch7.addConstraint(Sketcher.Constraint("Horizontal", 7, 3, 8, 3))
sketch7.addConstraint(Sketcher.Constraint("Horizontal", 8, 3, 9, 3))
sketch7.addConstraint(Sketcher.Constraint("Horizontal", 9, 3, 10, 3))
sketch7.addConstraint(Sketcher.Constraint("Horizontal", 10, 3, 11, 3))
sketch7.addConstraint(Sketcher.Constraint("Horizontal", 11, 3, 12, 3))
sketch7.addConstraint(Sketcher.Constraint("Horizontal", 13, 3, 14, 3))
sketch7.addConstraint(Sketcher.Constraint("Horizontal", 14, 3, 15, 3))
sketch7.addConstraint(Sketcher.Constraint("Horizontal", 15, 3, 16, 3))
sketch7.addConstraint(Sketcher.Constraint("Horizontal", 16, 3, 17, 3))
sketch7.addConstraint(Sketcher.Constraint("Horizontal", 17, 3, 18, 3))
sketch7.addConstraint(Sketcher.Constraint("Horizontal", 19, 3, 20, 3))
sketch7.addConstraint(Sketcher.Constraint("Horizontal", 20, 3, 21, 3))
sketch7.addConstraint(Sketcher.Constraint("Horizontal", 21, 3, 22, 3))
sketch7.addConstraint(Sketcher.Constraint("Horizontal", 22, 3, 23, 3))
sketch7.addConstraint(Sketcher.Constraint("Horizontal", 23, 3, 24, 3))
sketch7.addConstraint(Sketcher.Constraint("Horizontal", 6, 3, 5, 1))
sketch7.addConstraint(Sketcher.Constraint("Horizontal", 24, 3, 25, 1))
sketch7.addConstraint(Sketcher.Constraint("Vertical", 0, 3, 7, 3))
sketch7.addConstraint(Sketcher.Constraint("Vertical", 1, 3, 8, 3))
sketch7.addConstraint(Sketcher.Constraint("Vertical", 2, 3, 9, 3))
sketch7.addConstraint(Sketcher.Constraint("Vertical", 3, 3, 10, 3))
sketch7.addConstraint(Sketcher.Constraint("Vertical", 4, 3, 11, 3))
sketch7.addConstraint(Sketcher.Constraint("Vertical", 6, 3, 12, 3))
sketch7.addConstraint(Sketcher.Constraint("Vertical", 7, 3, 13, 3))
sketch7.addConstraint(Sketcher.Constraint("Vertical", 8, 3, 14, 3))
sketch7.addConstraint(Sketcher.Constraint("Vertical", 9, 3, 15, 3))
sketch7.addConstraint(Sketcher.Constraint("Vertical", 10, 3, 16, 3))
sketch7.addConstraint(Sketcher.Constraint("Vertical", 11, 3, 17, 3))
sketch7.addConstraint(Sketcher.Constraint("Vertical", 12, 3, 18, 3))
sketch7.addConstraint(Sketcher.Constraint("Vertical", 13, 3, 19, 3))
sketch7.addConstraint(Sketcher.Constraint("Vertical", 14, 3, 20, 3))
sketch7.addConstraint(Sketcher.Constraint("Vertical", 15, 3, 21, 3))
sketch7.addConstraint(Sketcher.Constraint("Vertical", 16, 3, 22, 3))
sketch7.addConstraint(Sketcher.Constraint("Vertical", 17, 3, 23, 3))
sketch7.addConstraint(Sketcher.Constraint("Vertical", 18, 3, 24, 3))
sketch7.addConstraint(Sketcher.Constraint("Vertical", 25, 3, 6, 1))
sketch7.addConstraint(Sketcher.Constraint("Vertical", 6, 1, 24, 1))
sketch7.addConstraint(Sketcher.Constraint("Diameter", 0, Q("1 in")))
sketch7.addConstraint(Sketcher.Constraint("DistanceX", -1, 1, 0, 3, Q("17 in")))
sketch7.addConstraint(Sketcher.Constraint("DistanceX", -1, 1, 1, 3, Q("20 in")))
sketch7.addConstraint(Sketcher.Constraint("DistanceX", -1, 1, 2, 3, Q("23 in")))
sketch7.addConstraint(Sketcher.Constraint("DistanceX", -1, 1, 3, 3, Q("26 in")))
sketch7.addConstraint(Sketcher.Constraint("DistanceX", -1, 1, 4, 3, Q("29 in")))
sketch7.addConstraint(Sketcher.Constraint("DistanceX", -1, 1, 5, 3, Q("32 in")))
sketch7.addConstraint(Sketcher.Constraint("DistanceY", -1, 1, 6, 1, Q("20 in")))
sketch7.addConstraint(Sketcher.Constraint("DistanceY", -1, 1, 24, 1, Q("10 in")))
sketch7.addConstraint(Sketcher.Constraint("DistanceY", 7, 3, 0, 3, Q("3 in")))
sketch7.addConstraint(Sketcher.Constraint("DistanceY", 13, 3, 7, 3, Q("3 in")))
pocket6 = doc.addObject("PartDesign::Pocket", "Pocket005")
body.addObject(pocket6)
pocket6.Profile = sketch7
pocket6.Type = "ThroughAll"

sketch8 = doc.addObject("Sketcher::SketchObject", "Sketch007")
body.addObject(sketch8)
sketch8.AttachmentSupport = (doc.XY_Plane, [""])
sketch8.MapMode = "FlatFace"
sketch8.AttachmentOffset = App.Placement(App.Vector(0, 0, -1 * 25.4), App.Rotation())
sketch8.addGeometry(Part.Circle(App.Vector(775, 152, 0), App.Vector(0, 0, 1), 25), False)
sketch8.addGeometry(Part.Circle(App.Vector(622, 152, 0), App.Vector(0, 0, 1), 25), False)
sketch8.addGeometry(Part.Circle(App.Vector(470, 152, 0), App.Vector(0, 0, 1), 25), False)
sketch8.addGeometry(Part.Circle(App.Vector(356, 381, 0), App.Vector(0, 0, 1), 25), False)
sketch8.addGeometry(Part.Circle(App.Vector(889, 381, 0), App.Vector(0, 0, 1), 25), False)
sketch8.addGeometry(Part.Circle(App.Vector(889, 229, 0), App.Vector(0, 0, 1), 25), False)
sketch8.addGeometry(Part.Circle(App.Vector(775, 610, 0), App.Vector(0, 0, 1), 25), False)
sketch8.addGeometry(Part.Circle(App.Vector(622, 610, 0), App.Vector(0, 0, 1), 25), False)
sketch8.addGeometry(Part.Circle(App.Vector(470, 610, 0), App.Vector(0, 0, 1), 25), False)
sketch8.addGeometry(Part.Circle(App.Vector(889, 533, 0), App.Vector(0, 0, 1), 25), False)
sketch8.addGeometry(Part.Circle(App.Vector(356, 229, 0), App.Vector(0, 0, 1), 25), False)
sketch8.addGeometry(Part.Circle(App.Vector(356, 533, 0), App.Vector(0, 0, 1), 25), False)
sketch8.addConstraint(Sketcher.Constraint("Equal", 0, 1))
sketch8.addConstraint(Sketcher.Constraint("Equal", 1, 2))
sketch8.addConstraint(Sketcher.Constraint("Equal", 2, 3))
sketch8.addConstraint(Sketcher.Constraint("Equal", 3, 4))
sketch8.addConstraint(Sketcher.Constraint("Equal", 4, 5))
sketch8.addConstraint(Sketcher.Constraint("Equal", 5, 6))
sketch8.addConstraint(Sketcher.Constraint("Equal", 6, 7))
sketch8.addConstraint(Sketcher.Constraint("Equal", 7, 8))
sketch8.addConstraint(Sketcher.Constraint("Equal", 8, 9))
sketch8.addConstraint(Sketcher.Constraint("Equal", 9, 10))
sketch8.addConstraint(Sketcher.Constraint("Equal", 10, 11))
sketch8.addConstraint(Sketcher.Constraint("Horizontal", 0, 3, 1, 3))
sketch8.addConstraint(Sketcher.Constraint("Horizontal", 1, 3, 2, 3))
sketch8.addConstraint(Sketcher.Constraint("Horizontal", 3, 3, 4, 3))
sketch8.addConstraint(Sketcher.Constraint("Horizontal", 6, 3, 7, 3))
sketch8.addConstraint(Sketcher.Constraint("Horizontal", 7, 3, 8, 3))
sketch8.addConstraint(Sketcher.Constraint("Horizontal", 5, 3, 10, 3))
sketch8.addConstraint(Sketcher.Constraint("Horizontal", 9, 3, 11, 3))
sketch8.addConstraint(Sketcher.Constraint("Vertical", 4, 3, 5, 3))
sketch8.addConstraint(Sketcher.Constraint("Vertical", 0, 3, 6, 3))
sketch8.addConstraint(Sketcher.Constraint("Vertical", 1, 3, 7, 3))
sketch8.addConstraint(Sketcher.Constraint("Vertical", 2, 3, 8, 3))
sketch8.addConstraint(Sketcher.Constraint("Vertical", 5, 3, 9, 3))
sketch8.addConstraint(Sketcher.Constraint("Vertical", 3, 3, 10, 3))
sketch8.addConstraint(Sketcher.Constraint("Vertical", 10, 3, 11, 3))
sketch8.addConstraint(Sketcher.Constraint("Diameter", 0, Q("2 in")))
sketch8.addConstraint(Sketcher.Constraint("DistanceY", -1, 1, 0, 3, Q("6 in")))
sketch8.addConstraint(Sketcher.Constraint("DistanceX", -1, 1, 3, 3, Q("14 in")))
sketch8.addConstraint(Sketcher.Constraint("DistanceY", -1, 1, 3, 3, Q("15 in")))
sketch8.addConstraint(Sketcher.Constraint("DistanceX", -1, 1, 4, 3, Q("35 in")))
sketch8.addConstraint(Sketcher.Constraint("DistanceY", -1, 1, 5, 3, Q("9 in")))
sketch8.addConstraint(Sketcher.Constraint("DistanceY", -1, 1, 6, 3, Q("24 in")))
sketch8.addConstraint(Sketcher.Constraint("DistanceY", -1, 1, 9, 3, Q("21 in")))
sketch8.addConstraint(Sketcher.Constraint("DistanceX", 1, 3, 0, 3, Q("6 in")))
sketch8.addConstraint(Sketcher.Constraint("DistanceX", 2, 3, 1, 3, Q("6 in")))
sketch8.addConstraint(Sketcher.Constraint("DistanceX", -1, 1, 0, 3, Q("30.5 in")))
pocket7 = doc.addObject("PartDesign::Pocket", "Pocket006")
body.addObject(pocket7)
pocket7.Profile = sketch8
pocket7.Length = Q("1 in")

sketch9 = doc.addObject("Sketcher::SketchObject", "Sketch008")
body.addObject(sketch9)
sketch9.AttachmentSupport = (doc.XY_Plane, [""])
sketch9.MapMode = "FlatFace"
sketch9.addGeometry(Part.Circle(App.Vector(127, 622, 0), App.Vector(0, 0, 1), 25), False)
sketch9.addGeometry(Part.Circle(App.Vector(1118, 622, 0), App.Vector(0, 0, 1), 25), False)
sketch9.addGeometry(Part.Circle(App.Vector(127, 140, 0), App.Vector(0, 0, 1), 25), False)
sketch9.addGeometry(Part.Circle(App.Vector(1118, 140, 0), App.Vector(0, 0, 1), 25), False)
sketch9.addConstraint(Sketcher.Constraint("Equal", 0, 1))
sketch9.addConstraint(Sketcher.Constraint("Equal", 1, 2))
sketch9.addConstraint(Sketcher.Constraint("Equal", 2, 3))
sketch9.addConstraint(Sketcher.Constraint("Horizontal", 0, 3, 1, 3))
sketch9.addConstraint(Sketcher.Constraint("Horizontal", 2, 3, 3, 3))
sketch9.addConstraint(Sketcher.Constraint("Vertical", 0, 3, 2, 3))
sketch9.addConstraint(Sketcher.Constraint("Vertical", 1, 3, 3, 3))
sketch9.addConstraint(Sketcher.Constraint("Diameter", 0, Q("2 in")))
sketch9.addConstraint(Sketcher.Constraint("DistanceX", -1, 1, 0, 3, Q("5 in")))
sketch9.addConstraint(Sketcher.Constraint("DistanceX", -1, 1, 1, 3, Q("44 in")))
sketch9.addConstraint(Sketcher.Constraint("DistanceY", 2, 3, 0, 3, Q("19 in")))
sketch9.addConstraint(Sketcher.Constraint("DistanceY", -1, 1, 0, 3, Q("24.5 in")))
pocket8 = doc.addObject("PartDesign::Pocket", "Pocket007")
body.addObject(pocket8)
pocket8.Profile = sketch9
pocket8.Type = "ThroughAll"

doc.recompute()
